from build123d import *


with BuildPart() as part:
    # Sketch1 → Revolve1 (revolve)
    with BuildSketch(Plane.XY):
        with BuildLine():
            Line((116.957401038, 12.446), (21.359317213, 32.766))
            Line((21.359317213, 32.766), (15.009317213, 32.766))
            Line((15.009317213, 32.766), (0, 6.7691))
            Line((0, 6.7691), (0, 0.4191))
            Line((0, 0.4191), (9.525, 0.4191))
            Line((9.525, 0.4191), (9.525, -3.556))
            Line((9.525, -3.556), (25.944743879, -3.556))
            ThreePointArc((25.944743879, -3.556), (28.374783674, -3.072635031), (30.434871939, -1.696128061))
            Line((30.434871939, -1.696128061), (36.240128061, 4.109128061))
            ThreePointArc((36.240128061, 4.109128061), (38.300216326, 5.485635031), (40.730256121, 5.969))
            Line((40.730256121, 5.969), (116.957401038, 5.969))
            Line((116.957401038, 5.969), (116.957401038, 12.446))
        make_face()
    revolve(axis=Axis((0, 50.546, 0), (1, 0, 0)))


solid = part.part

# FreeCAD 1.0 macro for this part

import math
import FreeCAD as App
import Part
import Sketcher
Q = App.Units.Quantity

doc = App.newDocument("Part")
params = doc.addObject("Spreadsheet::Sheet", "Params")
for row, (alias, value) in enumerate([
    ("sketch1_radius", "0.25 in"),
    ("sketch1_width", "0.25 in"),
    ("sketch1_width2", "0.375 in"),
    ("sketch1_height", "0.255 in"),
    ("revolution_angle", "360 deg"),
], start=1):
    params.set(f"A{row}", alias)
    params.set(f"B{row}", "=" + value)
    params.setAlias(f"B{row}", alias)

body = doc.addObject("PartDesign::Body", "Body")

sketch1 = body.newObject("Sketcher::SketchObject", "Sketch")
sketch1.AttachmentSupport = (doc.getObject("XY_Plane"), [""])
sketch1.MapMode = "FlatFace"
sketch1.addGeometry(Part.LineSegment(App.Vector(116.957401, 12.446, 0), App.Vector(21.359317, 32.766, 0)), False)
sketch1.addGeometry(Part.LineSegment(App.Vector(21.359317, 32.766, 0), App.Vector(15.009317, 32.766, 0)), False)
sketch1.addGeometry(Part.LineSegment(App.Vector(15.009317, 32.766, 0), App.Vector(0, 6.7691, 0)), False)
sketch1.addGeometry(Part.LineSegment(App.Vector(0, 6.7691, 0), App.Vector(0, 0.4191, 0)), False)
sketch1.addGeometry(Part.LineSegment(App.Vector(0, 0.4191, 0), App.Vector(9.525, 0.4191, 0)), False)
sketch1.addGeometry(Part.LineSegment(App.Vector(9.525, 0.4191, 0), App.Vector(9.525, -3.556, 0)), False)
sketch1.addGeometry(Part.LineSegment(App.Vector(9.525, -3.556, 0), App.Vector(25.944744, -3.556, 0)), False)
sketch1.addGeometry(Part.ArcOfCircle(Part.Circle(App.Vector(25.944744, 2.794, 0), App.Vector(0, 0, 1), 6.35), math.radians(-90), math.radians(-45)), False)
sketch1.addGeometry(Part.LineSegment(App.Vector(30.434872, -1.696128, 0), App.Vector(36.240128, 4.109128, 0)), False)
sketch1.addGeometry(Part.ArcOfCircle(Part.Circle(App.Vector(40.730256, -0.381, 0), App.Vector(0, 0, 1), 6.35), math.radians(90), math.radians(135)), False)
sketch1.addGeometry(Part.LineSegment(App.Vector(40.730256, 5.969, 0), App.Vector(116.957401, 5.969, 0)), False)
sketch1.addGeometry(Part.LineSegment(App.Vector(116.957401, 5.969, 0), App.Vector(116.957401, 12.446, 0)), False)
sketch1.addGeometry(Part.LineSegment(App.Vector(0, 50.546, 0), App.Vector(116.957401, 50.546, 0)), True)
sketch1.addConstraint(Sketcher.Constraint("Coincident", 0, 2, 1, 1))
sketch1.addConstraint(Sketcher.Constraint("Coincident", 1, 2, 2, 1))
sketch1.addConstraint(Sketcher.Constraint("Coincident", 2, 2, 3, 1))
sketch1.addConstraint(Sketcher.Constraint("Coincident", 3, 2, 4, 1))
sketch1.addConstraint(Sketcher.Constraint("Coincident", 4, 2, 5, 1))
sketch1.addConstraint(Sketcher.Constraint("Coincident", 5, 2, 6, 1))
sketch1.addConstraint(Sketcher.Constraint("Tangent", 6, 2, 7, 1))
sketch1.addConstraint(Sketcher.Constraint("Tangent", 7, 2, 8, 1))
sketch1.addConstraint(Sketcher.Constraint("Tangent", 8, 2, 9, 2))
sketch1.addConstraint(Sketcher.Constraint("Tangent", 9, 1, 10, 1))
sketch1.addConstraint(Sketcher.Constraint("Coincident", 10, 2, 11, 1))
sketch1.addConstraint(Sketcher.Constraint("Coincident", 11, 2, 0, 1))
sketch1.addConstraint(Sketcher.Constraint("Horizontal", 1))
sketch1.addConstraint(Sketcher.Constraint("Vertical", 3))
sketch1.addConstraint(Sketcher.Constraint("Horizontal", 4))
sketch1.addConstraint(Sketcher.Constraint("Vertical", 5))
sketch1.addConstraint(Sketcher.Constraint("Horizontal", 6))
sketch1.addConstraint(Sketcher.Constraint("Horizontal", 10))
sketch1.addConstraint(Sketcher.Constraint("Vertical", 11))
sketch1.addConstraint(Sketcher.Constraint("Horizontal", 12))
sketch1.addConstraint(Sketcher.Constraint("Equal", 7, 9))
sketch1.addConstraint(Sketcher.Constraint("PointOnObject", 2, 2, -2))
sketch1.addConstraint(Sketcher.Constraint("PointOnObject", 12, 1, -2))
sketch1.addConstraint(Sketcher.Constraint("Vertical", 11, 2, 12, 2))
sketch1.addConstraint(Sketcher.Constraint("Equal", 1, 3))
sketch1.addConstraint(Sketcher.Constraint("Radius", 7, Q("0.25 in")))
sketch1.addConstraint(Sketcher.Constraint("Angle", 0, Q("168 deg")))
sketch1.addConstraint(Sketcher.Constraint("Angle", 2, Q("-120 deg")))
sketch1.addConstraint(Sketcher.Constraint("Angle", 8, Q("45 deg")))
sketch1.addConstraint(Sketcher.Constraint("DistanceX", 1, 2, 1, 1, Q("0.25 in")))
sketch1.addConstraint(Sketcher.Constraint("DistanceY", 1, 2, 12, 1, Q("0.7 in")))
sketch1.addConstraint(Sketcher.Constraint("DistanceY", 11, 2, 12, 2, Q("1.5 in")))
sketch1.addConstraint(Sketcher.Constraint("DistanceX", 4, 1, 4, 2, Q("0.375 in")))
sketch1.addConstraint(Sketcher.Constraint("DistanceY", 11, 1, 11, 2, Q("0.255 in")))
sketch1.addConstraint(Sketcher.Constraint("DistanceY", -1, 1, 7, 3, Q("0.11 in")))
sketch1.addConstraint(Sketcher.Constraint("DistanceY", -1, 1, 0, 2, Q("1.29 in")))
sketch1.addConstraint(Sketcher.Constraint("DistanceY", 5, 2, 5, 1, Q("0.1565 in")))
sketch1.addConstraint(Sketcher.Constraint("DistanceX", 6, 1, 6, 2, 16.419744))
sketch1.setExpression("Constraints[25]", "Params.sketch1_radius")
sketch1.setExpression("Constraints[29]", "Params.sketch1_width")
sketch1.setExpression("Constraints[32]", "Params.sketch1_width2")
sketch1.setExpression("Constraints[33]", "Params.sketch1_height")
revolution = body.newObject("PartDesign::Revolution", "Revolution")
revolution.Profile = sketch1
revolution.ReferenceAxis = (sketch1, ["Axis0"])
revolution.setExpression("Angle", "Params.revolution_angle")

doc.recompute()
